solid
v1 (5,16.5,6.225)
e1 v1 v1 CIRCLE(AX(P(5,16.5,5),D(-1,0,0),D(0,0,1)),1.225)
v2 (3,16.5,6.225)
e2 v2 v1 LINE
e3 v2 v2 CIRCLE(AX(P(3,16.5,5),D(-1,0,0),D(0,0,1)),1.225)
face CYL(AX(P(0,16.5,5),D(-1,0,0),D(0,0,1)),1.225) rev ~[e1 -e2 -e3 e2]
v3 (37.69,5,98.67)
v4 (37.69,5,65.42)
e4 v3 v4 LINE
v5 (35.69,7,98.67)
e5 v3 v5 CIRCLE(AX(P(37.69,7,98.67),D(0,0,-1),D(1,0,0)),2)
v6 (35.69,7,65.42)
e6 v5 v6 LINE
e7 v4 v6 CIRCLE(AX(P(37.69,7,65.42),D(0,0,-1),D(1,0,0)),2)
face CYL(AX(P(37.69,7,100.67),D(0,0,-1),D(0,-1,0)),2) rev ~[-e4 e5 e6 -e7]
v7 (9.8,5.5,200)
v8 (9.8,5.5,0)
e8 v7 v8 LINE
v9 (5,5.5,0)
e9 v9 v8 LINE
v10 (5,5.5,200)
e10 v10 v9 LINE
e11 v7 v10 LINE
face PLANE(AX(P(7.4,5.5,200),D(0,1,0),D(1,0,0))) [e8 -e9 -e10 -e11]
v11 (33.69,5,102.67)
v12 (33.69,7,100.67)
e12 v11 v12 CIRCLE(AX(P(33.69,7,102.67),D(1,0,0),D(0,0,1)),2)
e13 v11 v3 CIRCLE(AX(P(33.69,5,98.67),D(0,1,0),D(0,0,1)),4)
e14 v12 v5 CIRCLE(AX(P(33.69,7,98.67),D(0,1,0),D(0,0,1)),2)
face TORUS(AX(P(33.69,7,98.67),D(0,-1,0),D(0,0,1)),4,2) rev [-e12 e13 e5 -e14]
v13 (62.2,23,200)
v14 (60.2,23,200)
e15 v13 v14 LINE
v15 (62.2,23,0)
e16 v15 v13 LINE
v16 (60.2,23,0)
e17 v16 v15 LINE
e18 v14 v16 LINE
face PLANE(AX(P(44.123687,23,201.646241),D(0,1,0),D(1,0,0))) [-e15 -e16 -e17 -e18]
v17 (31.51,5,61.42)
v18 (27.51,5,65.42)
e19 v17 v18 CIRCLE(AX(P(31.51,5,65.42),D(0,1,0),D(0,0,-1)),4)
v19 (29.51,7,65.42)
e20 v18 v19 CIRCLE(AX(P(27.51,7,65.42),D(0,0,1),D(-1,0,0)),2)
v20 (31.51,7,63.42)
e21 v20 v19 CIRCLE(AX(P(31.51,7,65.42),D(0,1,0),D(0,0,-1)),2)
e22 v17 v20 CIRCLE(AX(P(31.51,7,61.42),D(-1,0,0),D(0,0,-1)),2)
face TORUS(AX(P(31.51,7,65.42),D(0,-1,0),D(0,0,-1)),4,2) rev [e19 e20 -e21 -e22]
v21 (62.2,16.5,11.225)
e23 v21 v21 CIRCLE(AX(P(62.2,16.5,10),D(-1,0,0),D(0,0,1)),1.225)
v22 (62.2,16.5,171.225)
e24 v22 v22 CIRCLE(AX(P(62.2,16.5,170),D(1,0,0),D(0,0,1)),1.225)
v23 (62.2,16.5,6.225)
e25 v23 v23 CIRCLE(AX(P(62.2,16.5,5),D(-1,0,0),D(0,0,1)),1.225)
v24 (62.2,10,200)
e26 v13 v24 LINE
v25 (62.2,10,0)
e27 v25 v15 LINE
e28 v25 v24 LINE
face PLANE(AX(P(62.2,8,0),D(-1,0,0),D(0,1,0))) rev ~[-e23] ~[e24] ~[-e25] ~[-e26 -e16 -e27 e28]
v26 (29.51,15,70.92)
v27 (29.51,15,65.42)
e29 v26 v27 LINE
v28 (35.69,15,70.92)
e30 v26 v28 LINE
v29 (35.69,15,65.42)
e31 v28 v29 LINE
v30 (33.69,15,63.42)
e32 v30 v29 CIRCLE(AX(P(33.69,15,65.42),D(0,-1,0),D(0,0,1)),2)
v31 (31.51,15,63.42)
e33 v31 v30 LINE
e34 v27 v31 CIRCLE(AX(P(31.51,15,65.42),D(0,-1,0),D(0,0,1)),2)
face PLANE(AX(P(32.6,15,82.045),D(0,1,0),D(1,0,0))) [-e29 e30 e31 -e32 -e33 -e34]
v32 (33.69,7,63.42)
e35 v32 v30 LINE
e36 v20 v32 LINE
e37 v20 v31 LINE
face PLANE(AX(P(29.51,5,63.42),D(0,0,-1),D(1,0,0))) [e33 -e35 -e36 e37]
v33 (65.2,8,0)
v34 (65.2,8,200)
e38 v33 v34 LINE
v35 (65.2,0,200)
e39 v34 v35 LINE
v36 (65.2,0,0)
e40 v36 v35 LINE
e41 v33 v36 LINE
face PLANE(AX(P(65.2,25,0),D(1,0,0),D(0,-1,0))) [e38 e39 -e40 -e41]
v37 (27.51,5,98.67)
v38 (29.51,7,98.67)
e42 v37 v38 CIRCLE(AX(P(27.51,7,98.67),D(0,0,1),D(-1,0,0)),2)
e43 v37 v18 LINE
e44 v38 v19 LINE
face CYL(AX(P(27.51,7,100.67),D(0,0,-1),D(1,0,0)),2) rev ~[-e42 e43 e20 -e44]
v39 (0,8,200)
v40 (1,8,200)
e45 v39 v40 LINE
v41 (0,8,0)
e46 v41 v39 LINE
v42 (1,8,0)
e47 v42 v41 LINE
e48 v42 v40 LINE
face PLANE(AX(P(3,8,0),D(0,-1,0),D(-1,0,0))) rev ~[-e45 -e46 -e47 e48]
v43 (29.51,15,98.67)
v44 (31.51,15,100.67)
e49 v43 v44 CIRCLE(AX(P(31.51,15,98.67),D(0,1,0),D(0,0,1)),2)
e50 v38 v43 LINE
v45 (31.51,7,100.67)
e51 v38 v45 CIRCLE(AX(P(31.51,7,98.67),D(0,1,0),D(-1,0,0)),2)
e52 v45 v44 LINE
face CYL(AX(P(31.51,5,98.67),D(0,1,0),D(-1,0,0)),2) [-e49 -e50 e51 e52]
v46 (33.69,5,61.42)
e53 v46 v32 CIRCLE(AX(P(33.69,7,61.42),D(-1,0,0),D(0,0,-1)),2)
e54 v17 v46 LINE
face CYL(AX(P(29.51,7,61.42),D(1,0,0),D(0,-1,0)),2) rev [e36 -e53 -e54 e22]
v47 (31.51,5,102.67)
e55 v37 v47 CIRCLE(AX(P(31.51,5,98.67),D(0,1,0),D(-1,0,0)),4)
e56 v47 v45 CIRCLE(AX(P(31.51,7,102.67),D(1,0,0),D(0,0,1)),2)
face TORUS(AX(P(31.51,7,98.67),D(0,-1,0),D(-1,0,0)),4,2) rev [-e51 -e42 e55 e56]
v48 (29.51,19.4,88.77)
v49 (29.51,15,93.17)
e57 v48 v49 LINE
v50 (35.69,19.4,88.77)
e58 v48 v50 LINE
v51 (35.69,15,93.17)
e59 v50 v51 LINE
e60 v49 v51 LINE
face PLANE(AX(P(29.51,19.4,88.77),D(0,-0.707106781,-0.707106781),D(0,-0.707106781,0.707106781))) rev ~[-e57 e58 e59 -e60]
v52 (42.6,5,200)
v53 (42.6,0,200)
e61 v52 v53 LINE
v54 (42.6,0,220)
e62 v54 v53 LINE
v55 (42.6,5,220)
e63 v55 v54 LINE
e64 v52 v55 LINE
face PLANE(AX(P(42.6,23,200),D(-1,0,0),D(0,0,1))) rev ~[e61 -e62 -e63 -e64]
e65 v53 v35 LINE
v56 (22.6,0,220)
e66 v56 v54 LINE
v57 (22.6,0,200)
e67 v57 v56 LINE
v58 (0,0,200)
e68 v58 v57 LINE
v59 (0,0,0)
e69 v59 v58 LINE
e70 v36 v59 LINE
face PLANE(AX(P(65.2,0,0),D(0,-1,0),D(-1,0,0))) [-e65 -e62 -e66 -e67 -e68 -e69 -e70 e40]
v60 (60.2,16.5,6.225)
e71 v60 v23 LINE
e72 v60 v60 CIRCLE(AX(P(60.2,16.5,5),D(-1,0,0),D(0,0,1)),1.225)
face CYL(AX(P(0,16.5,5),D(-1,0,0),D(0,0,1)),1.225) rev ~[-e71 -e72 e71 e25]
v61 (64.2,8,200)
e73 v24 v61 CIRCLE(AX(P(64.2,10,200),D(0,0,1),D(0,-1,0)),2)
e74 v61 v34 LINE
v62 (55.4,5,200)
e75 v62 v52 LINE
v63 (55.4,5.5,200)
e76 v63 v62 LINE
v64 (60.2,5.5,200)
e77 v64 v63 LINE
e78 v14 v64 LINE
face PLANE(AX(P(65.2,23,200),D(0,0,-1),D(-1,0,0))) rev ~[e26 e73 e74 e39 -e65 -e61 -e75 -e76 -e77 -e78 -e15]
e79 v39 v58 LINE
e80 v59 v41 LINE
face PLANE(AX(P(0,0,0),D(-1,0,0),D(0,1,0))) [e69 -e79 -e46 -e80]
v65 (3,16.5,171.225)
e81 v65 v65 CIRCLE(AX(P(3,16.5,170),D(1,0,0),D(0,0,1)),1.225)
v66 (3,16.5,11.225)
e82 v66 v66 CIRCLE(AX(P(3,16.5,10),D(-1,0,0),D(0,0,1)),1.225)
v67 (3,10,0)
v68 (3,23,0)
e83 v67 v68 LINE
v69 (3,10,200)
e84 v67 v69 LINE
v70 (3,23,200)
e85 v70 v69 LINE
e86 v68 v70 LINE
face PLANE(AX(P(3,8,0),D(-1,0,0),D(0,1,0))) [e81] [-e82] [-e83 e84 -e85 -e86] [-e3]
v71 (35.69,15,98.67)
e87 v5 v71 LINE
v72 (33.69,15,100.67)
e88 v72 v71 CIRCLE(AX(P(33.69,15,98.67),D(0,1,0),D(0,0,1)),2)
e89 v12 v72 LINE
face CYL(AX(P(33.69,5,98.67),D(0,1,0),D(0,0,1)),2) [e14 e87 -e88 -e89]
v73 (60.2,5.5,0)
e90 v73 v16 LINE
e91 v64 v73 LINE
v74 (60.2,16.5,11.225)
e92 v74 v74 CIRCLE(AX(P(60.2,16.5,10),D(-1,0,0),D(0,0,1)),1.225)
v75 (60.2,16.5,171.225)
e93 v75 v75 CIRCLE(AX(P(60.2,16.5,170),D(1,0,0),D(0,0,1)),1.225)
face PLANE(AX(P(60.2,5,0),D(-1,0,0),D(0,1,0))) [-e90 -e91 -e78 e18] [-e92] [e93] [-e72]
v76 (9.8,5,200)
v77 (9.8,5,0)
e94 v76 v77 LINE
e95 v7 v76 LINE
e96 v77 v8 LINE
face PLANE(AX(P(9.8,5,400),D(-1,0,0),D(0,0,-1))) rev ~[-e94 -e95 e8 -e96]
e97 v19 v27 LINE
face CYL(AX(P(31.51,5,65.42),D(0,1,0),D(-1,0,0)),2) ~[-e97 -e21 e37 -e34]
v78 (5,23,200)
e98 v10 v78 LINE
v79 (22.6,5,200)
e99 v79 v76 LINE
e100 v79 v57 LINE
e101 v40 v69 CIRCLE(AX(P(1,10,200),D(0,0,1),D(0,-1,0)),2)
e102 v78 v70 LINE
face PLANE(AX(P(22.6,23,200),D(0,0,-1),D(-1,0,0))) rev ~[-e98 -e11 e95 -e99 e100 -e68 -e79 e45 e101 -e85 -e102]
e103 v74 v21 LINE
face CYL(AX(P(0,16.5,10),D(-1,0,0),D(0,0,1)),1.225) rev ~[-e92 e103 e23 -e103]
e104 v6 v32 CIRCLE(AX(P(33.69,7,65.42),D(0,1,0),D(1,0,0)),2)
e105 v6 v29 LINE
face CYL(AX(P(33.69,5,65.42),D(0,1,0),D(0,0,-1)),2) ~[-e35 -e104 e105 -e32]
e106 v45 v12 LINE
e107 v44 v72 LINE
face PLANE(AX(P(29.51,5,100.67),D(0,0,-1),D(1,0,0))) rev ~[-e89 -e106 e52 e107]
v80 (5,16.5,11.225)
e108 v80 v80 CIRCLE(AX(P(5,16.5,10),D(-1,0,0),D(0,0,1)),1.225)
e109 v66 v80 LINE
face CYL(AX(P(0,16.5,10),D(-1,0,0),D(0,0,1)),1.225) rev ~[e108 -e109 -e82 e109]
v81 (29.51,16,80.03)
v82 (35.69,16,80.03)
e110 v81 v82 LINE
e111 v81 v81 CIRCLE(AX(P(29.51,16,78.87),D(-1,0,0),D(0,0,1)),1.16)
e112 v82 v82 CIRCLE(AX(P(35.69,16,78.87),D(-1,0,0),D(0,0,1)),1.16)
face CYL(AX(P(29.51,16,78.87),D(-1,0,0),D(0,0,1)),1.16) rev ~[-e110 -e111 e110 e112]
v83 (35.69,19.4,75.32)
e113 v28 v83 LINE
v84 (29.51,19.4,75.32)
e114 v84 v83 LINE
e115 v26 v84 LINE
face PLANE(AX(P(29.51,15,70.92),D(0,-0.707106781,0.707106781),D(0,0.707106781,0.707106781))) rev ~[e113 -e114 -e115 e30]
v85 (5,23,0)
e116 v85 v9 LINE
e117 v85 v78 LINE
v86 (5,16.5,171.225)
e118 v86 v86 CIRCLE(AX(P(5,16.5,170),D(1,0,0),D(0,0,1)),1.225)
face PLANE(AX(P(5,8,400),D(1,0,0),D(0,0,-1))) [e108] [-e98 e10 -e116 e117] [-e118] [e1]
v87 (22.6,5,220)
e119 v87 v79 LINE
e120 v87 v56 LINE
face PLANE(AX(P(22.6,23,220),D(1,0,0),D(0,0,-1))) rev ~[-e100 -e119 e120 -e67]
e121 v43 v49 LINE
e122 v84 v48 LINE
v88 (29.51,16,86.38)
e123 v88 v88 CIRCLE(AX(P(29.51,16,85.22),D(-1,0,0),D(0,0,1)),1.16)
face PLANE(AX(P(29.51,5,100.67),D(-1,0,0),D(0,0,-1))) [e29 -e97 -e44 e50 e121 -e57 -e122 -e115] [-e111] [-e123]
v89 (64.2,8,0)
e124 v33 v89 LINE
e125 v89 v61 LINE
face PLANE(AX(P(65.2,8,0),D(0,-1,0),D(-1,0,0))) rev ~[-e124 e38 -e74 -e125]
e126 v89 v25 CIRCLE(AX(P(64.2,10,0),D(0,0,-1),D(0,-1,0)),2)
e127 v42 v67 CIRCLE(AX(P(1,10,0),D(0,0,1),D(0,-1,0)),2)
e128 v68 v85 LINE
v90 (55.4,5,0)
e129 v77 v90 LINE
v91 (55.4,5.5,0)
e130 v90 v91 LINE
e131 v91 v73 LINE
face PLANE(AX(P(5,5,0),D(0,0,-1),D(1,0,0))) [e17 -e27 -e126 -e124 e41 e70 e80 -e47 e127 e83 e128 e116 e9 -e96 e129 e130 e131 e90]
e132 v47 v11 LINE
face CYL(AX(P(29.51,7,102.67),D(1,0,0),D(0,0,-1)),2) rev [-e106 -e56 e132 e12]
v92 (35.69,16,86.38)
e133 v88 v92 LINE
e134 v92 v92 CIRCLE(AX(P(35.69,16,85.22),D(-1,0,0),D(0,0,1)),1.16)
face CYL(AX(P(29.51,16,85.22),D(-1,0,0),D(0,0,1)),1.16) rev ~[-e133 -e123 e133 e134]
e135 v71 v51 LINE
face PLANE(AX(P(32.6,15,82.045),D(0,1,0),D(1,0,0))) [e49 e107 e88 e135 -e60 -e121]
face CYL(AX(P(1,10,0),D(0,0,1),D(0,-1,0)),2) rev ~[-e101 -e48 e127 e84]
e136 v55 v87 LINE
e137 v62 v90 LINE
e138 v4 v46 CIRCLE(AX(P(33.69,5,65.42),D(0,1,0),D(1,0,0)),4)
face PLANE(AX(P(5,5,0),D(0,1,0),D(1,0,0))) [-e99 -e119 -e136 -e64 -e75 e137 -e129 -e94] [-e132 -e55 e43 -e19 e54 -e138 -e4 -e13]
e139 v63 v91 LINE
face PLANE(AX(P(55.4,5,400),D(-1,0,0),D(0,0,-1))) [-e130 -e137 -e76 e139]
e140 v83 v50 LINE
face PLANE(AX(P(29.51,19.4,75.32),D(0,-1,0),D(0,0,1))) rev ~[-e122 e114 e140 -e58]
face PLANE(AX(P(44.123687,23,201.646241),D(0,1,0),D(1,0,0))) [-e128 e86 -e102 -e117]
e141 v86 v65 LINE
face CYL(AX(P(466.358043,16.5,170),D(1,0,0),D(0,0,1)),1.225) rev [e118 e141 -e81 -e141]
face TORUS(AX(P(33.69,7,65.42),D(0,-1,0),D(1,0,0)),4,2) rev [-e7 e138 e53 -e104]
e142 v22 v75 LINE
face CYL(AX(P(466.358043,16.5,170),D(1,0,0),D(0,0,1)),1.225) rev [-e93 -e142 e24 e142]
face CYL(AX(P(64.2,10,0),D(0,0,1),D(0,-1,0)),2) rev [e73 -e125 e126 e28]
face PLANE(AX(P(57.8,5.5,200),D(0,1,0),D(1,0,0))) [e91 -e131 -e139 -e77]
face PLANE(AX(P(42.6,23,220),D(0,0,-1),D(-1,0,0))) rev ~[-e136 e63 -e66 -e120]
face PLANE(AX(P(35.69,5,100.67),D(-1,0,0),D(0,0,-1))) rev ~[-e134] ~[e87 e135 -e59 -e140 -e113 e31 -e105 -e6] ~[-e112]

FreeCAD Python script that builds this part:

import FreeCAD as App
import Part
import Sketcher
Q = App.Units.Quantity


def edges_at(feature, points):
    """Names of the edges that pass closest to the given points."""
    edges = feature.Shape.Edges
    near = lambda p: min(range(len(edges)), key=lambda i: edges[i].distToShape(Part.Vertex(*p))[0])
    return sorted({f"Edge{near(p) + 1}" for p in points})


def add_polygon(sketch, points):
    """Adds a closed chain of lines whose ends are joined by coincident constraints."""
    first, n = sketch.GeometryCount, len(points)
    for a, b in zip(points, points[1:] + points[:1]):
        sketch.addGeometry(Part.LineSegment(App.Vector(*a, 0), App.Vector(*b, 0)), False)
    for i in range(n):
        sketch.addConstraint(Sketcher.Constraint("Coincident", first + i, 2, first + (i + 1) % n, 1))

doc = App.newDocument("Part")
body = doc.addObject("PartDesign::Body", "Body")

sketch1 = body.newObject("Sketcher::SketchObject", "Sketch")
sketch1.AttachmentSupport = (doc.getObject("XY_Plane"), [""])
sketch1.MapMode = "FlatFace"
add_polygon(sketch1, [(0, 25), (0, 0), (65, 0), (65, 25), (60, 25), (60, 5), (5, 5), (5, 25)])
sketch1.addConstraint(Sketcher.Constraint("Vertical", 0))
sketch1.addConstraint(Sketcher.Constraint("Horizontal", 1))
sketch1.addConstraint(Sketcher.Constraint("Vertical", 2))
sketch1.addConstraint(Sketcher.Constraint("Horizontal", 3))
sketch1.addConstraint(Sketcher.Constraint("Vertical", 4))
sketch1.addConstraint(Sketcher.Constraint("Horizontal", 5))
sketch1.addConstraint(Sketcher.Constraint("Vertical", 6))
sketch1.addConstraint(Sketcher.Constraint("Horizontal", 7))
sketch1.addConstraint(Sketcher.Constraint("Coincident", 0, 2, -1, 1))
sketch1.addConstraint(Sketcher.Constraint("Horizontal", 3, 2, 6, 2))
sketch1.addConstraint(Sketcher.Constraint("Equal", 3, 7))
sketch1.addConstraint(Sketcher.Constraint("DistanceX", 3, 2, 3, 1, Q("5 mm")))
sketch1.addConstraint(Sketcher.Constraint("DistanceY", 0, 2, 0, 1, Q("25 mm")))
sketch1.addConstraint(Sketcher.Constraint("DistanceY", 4, 2, 4, 1, Q("20 mm")))
sketch1.addConstraint(Sketcher.Constraint("DistanceX", 1, 1, 1, 2, Q("65.2 mm")))
pad1 = body.newObject("PartDesign::Pad", "Pad")
pad1.Profile = sketch1
pad1.Length = 400

sketch2 = body.newObject("Sketcher::SketchObject", "Sketch001")
sketch2.AttachmentSupport = (doc.getObject("XZ_Plane"), [""])
sketch2.MapMode = "FlatFace"
sketch2.AttachmentOffset = App.Placement(App.Vector(0, 0, -5), App.Rotation())
sketch2.addGeometry(Part.Circle(App.Vector(32.6, 67.2, 0), App.Vector(0, 0, 1), 2.1), False)
sketch2.addGeometry(Part.Circle(App.Vector(32.6, 96.9, 0), App.Vector(0, 0, 1), 2.1), False)
sketch2.addConstraint(Sketcher.Constraint("Equal", 0, 1))
sketch2.addConstraint(Sketcher.Constraint("Vertical", 0, 3, 1, 3))
sketch2.addConstraint(Sketcher.Constraint("Diameter", 0, Q("4.2 mm")))
sketch2.addConstraint(Sketcher.Constraint("DistanceX", -1, 1, 0, 3, Q("32.6 mm")))
sketch2.addConstraint(Sketcher.Constraint("DistanceY", -1, 1, 0, 3, Q("67.17 mm")))
sketch2.addConstraint(Sketcher.Constraint("DistanceY", -1, 1, 1, 3, Q("96.92 mm")))
pocket1 = body.newObject("PartDesign::Pocket", "Pocket")
pocket1.Profile = sketch2
pocket1.Length = 10
pocket1.Reversed = True

sketch3 = body.newObject("Sketcher::SketchObject", "Sketch002")
sketch3.AttachmentSupport = (doc.getObject("XZ_Plane"), [""])
sketch3.MapMode = "FlatFace"
sketch3.AttachmentOffset = App.Placement(App.Vector(0, 0, -25), App.Rotation())
add_polygon(sketch3, [(-35, -47), (-35, 451), (123, 451), (123, -47)])
sketch3.addConstraint(Sketcher.Constraint("Vertical", 0))
sketch3.addConstraint(Sketcher.Constraint("Horizontal", 1))
sketch3.addConstraint(Sketcher.Constraint("Vertical", 2))
sketch3.addConstraint(Sketcher.Constraint("Horizontal", 3))
sketch3.addConstraint(Sketcher.Constraint("DistanceY", 0, 1, 0, 2, Q("497.98789 mm")))
sketch3.addConstraint(Sketcher.Constraint("DistanceX", 1, 1, 1, 2, Q("158.039132 mm")))
sketch3.addConstraint(Sketcher.Constraint("DistanceX", 0, 2, -1, 1, Q("34.895879 mm")))
sketch3.addConstraint(Sketcher.Constraint("DistanceY", -1, 1, 0, 2, Q("450.640186 mm")))
pocket2 = body.newObject("PartDesign::Pocket", "Pocket001")
pocket2.Profile = sketch3
pocket2.Length = 2
pocket2.Reversed = True

sketch4 = body.newObject("Sketcher::SketchObject", "Sketch003")
sketch4.AttachmentSupport = (doc.getObject("XZ_Plane"), [""])
sketch4.MapMode = "FlatFace"
sketch4.AttachmentOffset = App.Placement(App.Vector(0, 0, -5), App.Rotation())
add_polygon(sketch4, [(5, 0), (5, 400), (9.8, 400), (9.8, 0)])
add_polygon(sketch4, [(55.4, 0), (55.4, 400), (60.2, 400), (60.2, 0)])
sketch4.addConstraint(Sketcher.Constraint("Vertical", 0))
sketch4.addConstraint(Sketcher.Constraint("Horizontal", 1))
sketch4.addConstraint(Sketcher.Constraint("Vertical", 2))
sketch4.addConstraint(Sketcher.Constraint("Horizontal", 3))
sketch4.addConstraint(Sketcher.Constraint("Vertical", 4))
sketch4.addConstraint(Sketcher.Constraint("Horizontal", 5))
sketch4.addConstraint(Sketcher.Constraint("Vertical", 6))
sketch4.addConstraint(Sketcher.Constraint("Horizontal", 7))
sketch4.addConstraint(Sketcher.Constraint("PointOnObject", 2, 2, -1))
sketch4.addConstraint(Sketcher.Constraint("PointOnObject", 6, 2, -1))
sketch4.addConstraint(Sketcher.Constraint("Horizontal", 1, 2, 4, 2))
sketch4.addConstraint(Sketcher.Constraint("Equal", 3, 5))
sketch4.addConstraint(Sketcher.Constraint("DistanceY", 0, 1, 0, 2, Q("400 mm")))
sketch4.addConstraint(Sketcher.Constraint("DistanceX", 1, 1, 1, 2, Q("4.8 mm")))
sketch4.addConstraint(Sketcher.Constraint("DistanceX", -1, 1, 0, 2, Q("5 mm")))
sketch4.addConstraint(Sketcher.Constraint("DistanceX", -1, 1, 4, 2, Q("55.4 mm")))
pad2 = body.newObject("PartDesign::Pad", "Pad001")
pad2.Profile = sketch4
pad2.Length = 8
pad2.Reversed = True

sketch5 = body.newObject("Sketcher::SketchObject", "Sketch004")
sketch5.AttachmentSupport = (doc.getObject("YZ_Plane"), [""])
sketch5.MapMode = "FlatFace"
sketch5.AttachmentOffset = App.Placement(App.Vector(0, 0, 5), App.Rotation())
sketch5.addGeometry(Part.Circle(App.Vector(16.5, 395, 0), App.Vector(0, 0, 1), 1.2), False)
sketch5.addGeometry(Part.Circle(App.Vector(16.5, 390, 0), App.Vector(0, 0, 1), 1.2), False)
sketch5.addGeometry(Part.Circle(App.Vector(16.5, 10, 0), App.Vector(0, 0, 1), 1.2), False)
sketch5.addGeometry(Part.Circle(App.Vector(16.5, 5, 0), App.Vector(0, 0, 1), 1.2), False)
sketch5.addConstraint(Sketcher.Constraint("Equal", 0, 1))
sketch5.addConstraint(Sketcher.Constraint("Equal", 1, 2))
sketch5.addConstraint(Sketcher.Constraint("Equal", 2, 3))
sketch5.addConstraint(Sketcher.Constraint("Vertical", 0, 3, 1, 3))
sketch5.addConstraint(Sketcher.Constraint("Vertical", 1, 3, 2, 3))
sketch5.addConstraint(Sketcher.Constraint("Vertical", 2, 3, 3, 3))
sketch5.addConstraint(Sketcher.Constraint("Diameter", 0, Q("2.4 mm")))
sketch5.addConstraint(Sketcher.Constraint("DistanceY", -1, 1, 0, 3, Q("395 mm")))
sketch5.addConstraint(Sketcher.Constraint("DistanceY", -1, 1, 1, 3, Q("390 mm")))
sketch5.addConstraint(Sketcher.Constraint("DistanceY", -1, 1, 2, 3, Q("10 mm")))
sketch5.addConstraint(Sketcher.Constraint("DistanceY", -1, 1, 3, 3, Q("5 mm")))
sketch5.addConstraint(Sketcher.Constraint("DistanceX", -1, 1, 0, 3, Q("16.5 mm")))
pocket3 = body.newObject("PartDesign::Pocket", "Pocket002")
pocket3.Profile = sketch5
pocket3.Type = "ThroughAll"

sketch6 = body.newObject("Sketcher::SketchObject", "Sketch005")
sketch6.AttachmentSupport = (doc.getObject("YZ_Plane"), [""])
sketch6.MapMode = "FlatFace"
sketch6.addGeometry(Part.Circle(App.Vector(16.5, 5, 0), App.Vector(0, 0, 1), 1.2), False)
sketch6.addGeometry(Part.Circle(App.Vector(16.5, 10, 0), App.Vector(0, 0, 1), 1.2), False)
sketch6.addGeometry(Part.Circle(App.Vector(16.5, 390, 0), App.Vector(0, 0, 1), 1.2), False)
sketch6.addGeometry(Part.Circle(App.Vector(16.5, 395, 0), App.Vector(0, 0, 1), 1.2), False)
sketch6.addConstraint(Sketcher.Constraint("Equal", 0, 1))
sketch6.addConstraint(Sketcher.Constraint("Equal", 1, 2))
sketch6.addConstraint(Sketcher.Constraint("Equal", 2, 3))
sketch6.addConstraint(Sketcher.Constraint("Vertical", 0, 3, 1, 3))
sketch6.addConstraint(Sketcher.Constraint("Vertical", 1, 3, 2, 3))
sketch6.addConstraint(Sketcher.Constraint("Vertical", 2, 3, 3, 3))
sketch6.addConstraint(Sketcher.Constraint("Diameter", 0, Q("2.45 mm")))
sketch6.addConstraint(Sketcher.Constraint("DistanceY", -1, 1, 0, 3, Q("5 mm")))
sketch6.addConstraint(Sketcher.Constraint("DistanceY", -1, 1, 1, 3, Q("10 mm")))
sketch6.addConstraint(Sketcher.Constraint("DistanceY", -1, 1, 2, 3, Q("390 mm")))
sketch6.addConstraint(Sketcher.Constraint("DistanceY", -1, 1, 3, 3, Q("395 mm")))
sketch6.addConstraint(Sketcher.Constraint("DistanceX", -1, 1, 0, 3, Q("16.5 mm")))
pocket4 = body.newObject("PartDesign::Pocket", "Pocket003")
pocket4.Profile = sketch6
pocket4.Type = "ThroughAll"
pocket4.Reversed = True

sketch7 = body.newObject("Sketcher::SketchObject", "Sketch006")
sketch7.AttachmentSupport = (doc.getObject("XZ_Plane"), [""])
sketch7.MapMode = "FlatFace"
sketch7.AttachmentOffset = App.Placement(App.Vector(0, 0, -13), App.Rotation())
add_polygon(sketch7, [(5, 0), (5, 400), (9.8, 400), (9.8, 0)])
add_polygon(sketch7, [(55.4, 0), (55.4, 400), (60.2, 400), (60.2, 0)])
sketch7.addConstraint(Sketcher.Constraint("Vertical", 0))
sketch7.addConstraint(Sketcher.Constraint("Horizontal", 1))
sketch7.addConstraint(Sketcher.Constraint("Vertical", 2))
sketch7.addConstraint(Sketcher.Constraint("Horizontal", 3))
sketch7.addConstraint(Sketcher.Constraint("Vertical", 4))
sketch7.addConstraint(Sketcher.Constraint("Horizontal", 5))
sketch7.addConstraint(Sketcher.Constraint("Vertical", 6))
sketch7.addConstraint(Sketcher.Constraint("Horizontal", 7))
sketch7.addConstraint(Sketcher.Constraint("PointOnObject", 2, 2, -1))
sketch7.addConstraint(Sketcher.Constraint("PointOnObject", 6, 2, -1))
sketch7.addConstraint(Sketcher.Constraint("Horizontal", 1, 2, 4, 2))
sketch7.addConstraint(Sketcher.Constraint("Equal", 3, 5))
sketch7.addConstraint(Sketcher.Constraint("DistanceY", 0, 1, 0, 2, Q("400 mm")))
sketch7.addConstraint(Sketcher.Constraint("DistanceX", 1, 1, 1, 2, Q("4.8 mm")))
sketch7.addConstraint(Sketcher.Constraint("DistanceX", -1, 1, 0, 2, Q("5 mm")))
sketch7.addConstraint(Sketcher.Constraint("DistanceX", -1, 1, 4, 2, Q("55.4 mm")))
pocket5 = body.newObject("PartDesign::Pocket", "Pocket004")
pocket5.Profile = sketch7
pocket5.Length = 5
pocket5.Reversed = True

sketch8 = body.newObject("Sketcher::SketchObject", "Sketch007")
sketch8.AttachmentSupport = (doc.getObject("XZ_Plane"), [""])
sketch8.MapMode = "FlatFace"
sketch8.AttachmentOffset = App.Placement(App.Vector(0, 0, -15), App.Rotation())
sketch8.addGeometry(Part.Circle(App.Vector(32.6, 96.9, 0), App.Vector(0, 0, 1), 2.1), False)
sketch8.addGeometry(Part.Circle(App.Vector(32.6, 67.2, 0), App.Vector(0, 0, 1), 2.1), False)
sketch8.addConstraint(Sketcher.Constraint("Equal", 0, 1))
sketch8.addConstraint(Sketcher.Constraint("Vertical", 0, 3, 1, 3))
sketch8.addConstraint(Sketcher.Constraint("Diameter", 0, Q("4.2 mm")))
sketch8.addConstraint(Sketcher.Constraint("DistanceX", -1, 1, 0, 3, Q("32.6 mm")))
sketch8.addConstraint(Sketcher.Constraint("DistanceY", -1, 1, 0, 3, Q("96.92 mm")))
sketch8.addConstraint(Sketcher.Constraint("DistanceY", -1, 1, 1, 3, Q("67.17 mm")))
pad3 = body.newObject("PartDesign::Pad", "Pad002")
pad3.Profile = sketch8
pad3.Length = 15

sketch9 = body.newObject("Sketcher::SketchObject", "Sketch008")
sketch9.AttachmentSupport = (doc.getObject("XZ_Plane"), [""])
sketch9.MapMode = "FlatFace"
sketch9.AttachmentOffset = App.Placement(App.Vector(0, 0, -5), App.Rotation())
add_polygon(sketch9, [(30, 63), (30, 101), (36, 101), (36, 63)])
sketch9.addConstraint(Sketcher.Constraint("Vertical", 0))
sketch9.addConstraint(Sketcher.Constraint("Horizontal", 1))
sketch9.addConstraint(Sketcher.Constraint("Vertical", 2))
sketch9.addConstraint(Sketcher.Constraint("Horizontal", 3))
sketch9.addConstraint(Sketcher.Constraint("DistanceX", 1, 1, 1, 2, Q("6.18 mm")))
sketch9.addConstraint(Sketcher.Constraint("DistanceY", 0, 1, 0, 2, Q("37.25 mm")))
sketch9.addConstraint(Sketcher.Constraint("DistanceX", -1, 1, 0, 2, Q("29.51 mm")))
sketch9.addConstraint(Sketcher.Constraint("DistanceY", -1, 1, 0, 2, Q("100.67 mm")))
pad4 = body.newObject("PartDesign::Pad", "Pad003")
pad4.Profile = sketch9
pad4.Length = 10
pad4.Reversed = True

sketch10 = body.newObject("Sketcher::SketchObject", "Sketch009")
sketch10.AttachmentSupport = (doc.getObject("YZ_Plane"), [""])
sketch10.MapMode = "FlatFace"
sketch10.AttachmentOffset = App.Placement(App.Vector(0, 0, 29.51), App.Rotation())
add_polygon(sketch10, [(19, 75), (15, 71), (15, 93), (19, 89)])
sketch10.addConstraint(Sketcher.Constraint("Vertical", 1))
sketch10.addConstraint(Sketcher.Constraint("Vertical", 3))
sketch10.addConstraint(Sketcher.Constraint("Perpendicular", 0, 2))
sketch10.addConstraint(Sketcher.Constraint("Equal", 0, 2))
sketch10.addConstraint(Sketcher.Constraint("DistanceX", -1, 1, 0, 2, Q("15 mm")))
sketch10.addConstraint(Sketcher.Constraint("DistanceY", 1, 1, 1, 2, Q("22.25 mm")))
sketch10.addConstraint(Sketcher.Constraint("DistanceY", 3, 2, 3, 1, Q("13.45 mm")))
sketch10.addConstraint(Sketcher.Constraint("DistanceY", -1, 1, 0, 2, Q("70.92 mm")))
pad5 = body.newObject("PartDesign::Pad", "Pad004")
pad5.Profile = sketch10
pad5.Length = 6.18

sketch11 = body.newObject("Sketcher::SketchObject", "Sketch010")
sketch11.AttachmentSupport = (doc.getObject("YZ_Plane"), [""])
sketch11.MapMode = "FlatFace"
sketch11.AttachmentOffset = App.Placement(App.Vector(0, 0, 29.51), App.Rotation())
sketch11.addGeometry(Part.Circle(App.Vector(16, 78.9, 0), App.Vector(0, 0, 1), 1.1), False)
sketch11.addGeometry(Part.Circle(App.Vector(16, 85.2, 0), App.Vector(0, 0, 1), 1.1), False)
sketch11.addConstraint(Sketcher.Constraint("Equal", 0, 1))
sketch11.addConstraint(Sketcher.Constraint("Vertical", 0, 3, 1, 3))
sketch11.addConstraint(Sketcher.Constraint("Diameter", 0, Q("2.1 mm")))
sketch11.addConstraint(Sketcher.Constraint("DistanceX", -1, 1, 0, 3, Q("16 mm")))
sketch11.addConstraint(Sketcher.Constraint("DistanceY", -1, 1, 0, 3, Q("78.87 mm")))
sketch11.addConstraint(Sketcher.Constraint("DistanceY", -1, 1, 1, 3, Q("85.22 mm")))
pocket6 = body.newObject("PartDesign::Pocket", "Pocket005")
pocket6.Profile = sketch11
pocket6.Length = 10
pocket6.Reversed = True
doc.recompute()

fillet = body.newObject("PartDesign::Fillet", "Fillet")
fillet.Base = (pocket6, edges_at(pocket6, [
    (29.51, 5, 82.045),
    (29.51, 10, 63.42),
    (32.6, 5, 100.67),
    (29.51, 10, 100.67),
    (35.69, 5, 82.045),
    (35.69, 10, 100.67),
    (32.6, 5, 63.42),
    (35.69, 10, 63.42),
]))
fillet.Radius = 2

sketch12 = body.newObject("Sketcher::SketchObject", "Sketch011")
sketch12.AttachmentSupport = (doc.getObject("XZ_Plane"), [""])
sketch12.MapMode = "FlatFace"
sketch12.AttachmentOffset = App.Placement(App.Vector(0, 0, -8), App.Rotation())
add_polygon(sketch12, [(5, 0), (5, 400), (9.8, 400), (9.8, 0)])
add_polygon(sketch12, [(55.4, 0), (55.4, 400), (60.2, 400), (60.2, 0)])
sketch12.addConstraint(Sketcher.Constraint("Vertical", 0))
sketch12.addConstraint(Sketcher.Constraint("Horizontal", 1))
sketch12.addConstraint(Sketcher.Constraint("Vertical", 2))
sketch12.addConstraint(Sketcher.Constraint("Horizontal", 3))
sketch12.addConstraint(Sketcher.Constraint("Vertical", 4))
sketch12.addConstraint(Sketcher.Constraint("Horizontal", 5))
sketch12.addConstraint(Sketcher.Constraint("Vertical", 6))
sketch12.addConstraint(Sketcher.Constraint("Horizontal", 7))
sketch12.addConstraint(Sketcher.Constraint("PointOnObject", 2, 2, -1))
sketch12.addConstraint(Sketcher.Constraint("PointOnObject", 6, 2, -1))
sketch12.addConstraint(Sketcher.Constraint("Horizontal", 1, 2, 4, 2))
sketch12.addConstraint(Sketcher.Constraint("Equal", 3, 5))
sketch12.addConstraint(Sketcher.Constraint("DistanceY", 0, 1, 0, 2, Q("400 mm")))
sketch12.addConstraint(Sketcher.Constraint("DistanceX", 1, 1, 1, 2, Q("4.8 mm")))
sketch12.addConstraint(Sketcher.Constraint("DistanceX", -1, 1, 0, 2, Q("5 mm")))
sketch12.addConstraint(Sketcher.Constraint("DistanceX", -1, 1, 4, 2, Q("55.4 mm")))
pocket7 = body.newObject("PartDesign::Pocket", "Pocket006")
pocket7.Profile = sketch12
pocket7.Length = 2.5
pocket7.Reversed = True

sketch13 = body.newObject("Sketcher::SketchObject", "Sketch012")
sketch13.AttachmentSupport = (doc.getObject("YZ_Plane"), [""])
sketch13.MapMode = "FlatFace"
sketch13.AttachmentOffset = App.Placement(App.Vector(0, 0, 29.51), App.Rotation())
sketch13.addGeometry(Part.Circle(App.Vector(16, 78.9, 0), App.Vector(0, 0, 1), 1.2), False)
sketch13.addConstraint(Sketcher.Constraint("Diameter", 0, Q("2.32 mm")))
sketch13.addConstraint(Sketcher.Constraint("DistanceX", -1, 1, 0, 3, Q("16 mm")))
sketch13.addConstraint(Sketcher.Constraint("DistanceY", -1, 1, 0, 3, Q("78.87 mm")))
pocket8 = body.newObject("PartDesign::Pocket", "Pocket007")
pocket8.Profile = sketch13
pocket8.Type = "UpToFirst"
pocket8.Reversed = True

sketch14 = body.newObject("Sketcher::SketchObject", "Sketch013")
sketch14.AttachmentSupport = (doc.getObject("YZ_Plane"), [""])
sketch14.MapMode = "FlatFace"
sketch14.AttachmentOffset = App.Placement(App.Vector(0, 0, 29.51), App.Rotation())
sketch14.addGeometry(Part.Circle(App.Vector(16, 85.2, 0), App.Vector(0, 0, 1), 1.2), False)
sketch14.addConstraint(Sketcher.Constraint("Diameter", 0, Q("2.32 mm")))
sketch14.addConstraint(Sketcher.Constraint("DistanceX", -1, 1, 0, 3, Q("16 mm")))
sketch14.addConstraint(Sketcher.Constraint("DistanceY", -1, 1, 0, 3, Q("85.22 mm")))
pocket9 = body.newObject("PartDesign::Pocket", "Pocket008")
pocket9.Profile = sketch14
pocket9.Type = "UpToFirst"
pocket9.Reversed = True

sketch15 = body.newObject("Sketcher::SketchObject", "Sketch014")
sketch15.AttachmentSupport = (doc.getObject("YZ_Plane"), [""])
sketch15.MapMode = "FlatFace"
sketch15.AttachmentOffset = App.Placement(App.Vector(0, 0, 60.2), App.Rotation())
sketch15.addGeometry(Part.Circle(App.Vector(16.5, 170, 0), App.Vector(0, 0, 1), 1.2), False)
sketch15.addConstraint(Sketcher.Constraint("Diameter", 0, Q("2.45 mm")))
sketch15.addConstraint(Sketcher.Constraint("DistanceY", -1, 1, 0, 3, Q("170 mm")))
sketch15.addConstraint(Sketcher.Constraint("DistanceX", -1, 1, 0, 3, Q("16.5 mm")))
pocket10 = body.newObject("PartDesign::Pocket", "Pocket009")
pocket10.Profile = sketch15
pocket10.Type = "ThroughAll"
pocket10.Midplane = True

sketch16 = body.newObject("Sketcher::SketchObject", "Sketch015")
sketch16.AttachmentSupport = (doc.getObject("YZ_Plane"), [""])
sketch16.MapMode = "FlatFace"
sketch16.AttachmentOffset = App.Placement(App.Vector(0, 0, 60.2), App.Rotation())
sketch16.addGeometry(Part.Circle(App.Vector(16.5, 230, 0), App.Vector(0, 0, 1), 1.2), False)
sketch16.addConstraint(Sketcher.Constraint("Diameter", 0, Q("2.45 mm")))
sketch16.addConstraint(Sketcher.Constraint("DistanceY", -1, 1, 0, 3, Q("230 mm")))
sketch16.addConstraint(Sketcher.Constraint("DistanceX", -1, 1, 0, 3, Q("16.5 mm")))
pocket11 = body.newObject("PartDesign::Pocket", "Pocket010")
pocket11.Profile = sketch16
pocket11.Type = "ThroughAll"
pocket11.Midplane = True

sketch17 = body.newObject("Sketcher::SketchObject", "Sketch016")
sketch17.AttachmentSupport = (doc.getObject("XY_Plane"), [""])
sketch17.MapMode = "FlatFace"
add_polygon(sketch17, [(65.2, 23), (65.2, 8), (62.2, 8), (62.2, 23)])
add_polygon(sketch17, [(3, 23), (3, 8), (0, 8), (0, 23)])
sketch17.addConstraint(Sketcher.Constraint("Vertical", 0))
sketch17.addConstraint(Sketcher.Constraint("Horizontal", 1))
sketch17.addConstraint(Sketcher.Constraint("Vertical", 2))
sketch17.addConstraint(Sketcher.Constraint("Horizontal", 3))
sketch17.addConstraint(Sketcher.Constraint("Vertical", 4))
sketch17.addConstraint(Sketcher.Constraint("Horizontal", 5))
sketch17.addConstraint(Sketcher.Constraint("Vertical", 6))
sketch17.addConstraint(Sketcher.Constraint("Horizontal", 7))
sketch17.addConstraint(Sketcher.Constraint("PointOnObject", 5, 2, -2))
sketch17.addConstraint(Sketcher.Constraint("Horizontal", 1, 2, 4, 2))
sketch17.addConstraint(Sketcher.Constraint("Horizontal", 3, 2, 6, 2))
sketch17.addConstraint(Sketcher.Constraint("Equal", 3, 5))
sketch17.addConstraint(Sketcher.Constraint("DistanceX", 1, 2, 1, 1, Q("3 mm")))
sketch17.addConstraint(Sketcher.Constraint("DistanceY", 0, 2, 0, 1, Q("15 mm")))
sketch17.addConstraint(Sketcher.Constraint("DistanceY", -1, 1, 0, 2, Q("8 mm")))
sketch17.addConstraint(Sketcher.Constraint("DistanceX", -1, 1, 0, 2, Q("65.2 mm")))
pocket12 = body.newObject("PartDesign::Pocket", "Pocket011")
pocket12.Profile = sketch17
pocket12.Type = "ThroughAll"
pocket12.Reversed = True
doc.recompute()

fillet2 = body.newObject("PartDesign::Fillet", "Fillet001")
fillet2.Base = (pocket12, edges_at(pocket12, [(62.2, 8, 200)]))
fillet2.Radius = 2
doc.recompute()

fillet3 = body.newObject("PartDesign::Fillet", "Fillet002")
fillet3.Base = (fillet2, edges_at(fillet2, [(3, 8, 200)]))
fillet3.Radius = 2

sketch18 = body.newObject("Sketcher::SketchObject", "Sketch017")
sketch18.AttachmentSupport = (doc.getObject("XZ_Plane"), [""])
sketch18.MapMode = "FlatFace"
sketch18.AttachmentOffset = App.Placement(App.Vector(0, 0, -23), App.Rotation())
add_polygon(sketch18, [(23, 200), (0, 200), (0, 400), (65, 400), (65, 200), (43, 200), (43, 220), (23, 220)])
sketch18.addConstraint(Sketcher.Constraint("Horizontal", 0))
sketch18.addConstraint(Sketcher.Constraint("Vertical", 1))
sketch18.addConstraint(Sketcher.Constraint("Horizontal", 2))
sketch18.addConstraint(Sketcher.Constraint("Vertical", 3))
sketch18.addConstraint(Sketcher.Constraint("Horizontal", 4))
sketch18.addConstraint(Sketcher.Constraint("Vertical", 5))
sketch18.addConstraint(Sketcher.Constraint("Horizontal", 6))
sketch18.addConstraint(Sketcher.Constraint("Vertical", 7))
sketch18.addConstraint(Sketcher.Constraint("PointOnObject", 0, 2, -2))
sketch18.addConstraint(Sketcher.Constraint("Horizontal", 0, 2, 3, 2))
sketch18.addConstraint(Sketcher.Constraint("Equal", 0, 4))
sketch18.addConstraint(Sketcher.Constraint("Equal", 6, 5))
sketch18.addConstraint(Sketcher.Constraint("DistanceX", 6, 2, 6, 1, Q("20 mm")))
sketch18.addConstraint(Sketcher.Constraint("DistanceY", 1, 1, 1, 2, Q("200 mm")))
sketch18.addConstraint(Sketcher.Constraint("DistanceX", 0, 2, 0, 1, Q("22.6 mm")))
sketch18.addConstraint(Sketcher.Constraint("DistanceY", -1, 1, 0, 2, Q("200 mm")))
pocket13 = body.newObject("PartDesign::Pocket", "Pocket012")
pocket13.Profile = sketch18
pocket13.Type = "ThroughAll"
pocket13.Reversed = True

doc.recompute()
